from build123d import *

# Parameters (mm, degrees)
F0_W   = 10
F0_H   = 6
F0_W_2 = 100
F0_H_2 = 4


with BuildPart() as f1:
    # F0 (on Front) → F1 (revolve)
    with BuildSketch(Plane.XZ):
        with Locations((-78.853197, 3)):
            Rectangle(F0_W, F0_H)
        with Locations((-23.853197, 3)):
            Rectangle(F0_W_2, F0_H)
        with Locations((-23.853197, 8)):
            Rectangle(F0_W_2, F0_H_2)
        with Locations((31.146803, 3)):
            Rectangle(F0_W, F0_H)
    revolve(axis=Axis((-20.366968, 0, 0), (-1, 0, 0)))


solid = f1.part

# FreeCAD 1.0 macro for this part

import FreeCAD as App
import Part
import Sketcher
from FreeCAD import Vector
Q = App.Units.Quantity


def add_polygon(sketch, points):
    """Adds a closed chain of lines whose ends are joined by coincident constraints."""
    first, n = sketch.GeometryCount, len(points)
    for a, b in zip(points, points[1:] + points[:1]):
        sketch.addGeometry(Part.LineSegment(App.Vector(*a, 0), App.Vector(*b, 0)), False)
    for i in range(n):
        sketch.addConstraint(Sketcher.Constraint("Coincident", first + i, 2, first + (i + 1) % n, 1))

doc = App.newDocument("Part")
params = doc.addObject("Spreadsheet::Sheet", "Params")
for row, (alias, value) in enumerate([
    ("sketch1_width", "120 mm"),
    ("sketch1_width2", "10 mm"),
    ("sketch1_height", "6 mm"),
    ("sketch1_height2", "4 mm"),
    ("revolution_angle", "360 deg"),
], start=1):
    params.set(f"A{row}", alias)
    params.set(f"B{row}", "=" + value)
    params.setAlias(f"B{row}", alias)

body = doc.addObject("PartDesign::Body", "Body")

# Sketch on XZ plane
sketch1 = body.newObject("Sketcher::SketchObject", "Sketch")
sketch1.AttachmentSupport = (doc.getObject("XZ_Plane"), [""])
sketch1.MapMode = "FlatFace"
add_polygon(sketch1, [(-83.853197, 6), (-83.853197, 0), (36.146803, 0), (36.146803, 6), (26.146803, 6), (26.146803, 10), (-73.853197, 10), (-73.853197, 6)])  # lines 0-7
sketch1.addConstraint(Sketcher.Constraint("Vertical", 0))
sketch1.addConstraint(Sketcher.Constraint("Horizontal", 1))
sketch1.addConstraint(Sketcher.Constraint("Vertical", 2))
sketch1.addConstraint(Sketcher.Constraint("Horizontal", 3))
sketch1.addConstraint(Sketcher.Constraint("Vertical", 4))
sketch1.addConstraint(Sketcher.Constraint("Horizontal", 5))
sketch1.addConstraint(Sketcher.Constraint("Vertical", 6))
sketch1.addConstraint(Sketcher.Constraint("Horizontal", 7))
sketch1.addConstraint(Sketcher.Constraint("PointOnObject", 0, 2, -1))
sketch1.addConstraint(Sketcher.Constraint("Horizontal", 3, 2, 6, 2))
sketch1.addConstraint(Sketcher.Constraint("Equal", 3, 7))
sketch1.addConstraint(Sketcher.Constraint("DistanceX", 1, 1, 1, 2, Q("120 mm")))
sketch1.addConstraint(Sketcher.Constraint("DistanceX", 3, 2, 3, 1, Q("10 mm")))
sketch1.addConstraint(Sketcher.Constraint("DistanceY", 0, 2, 0, 1, Q("6 mm")))
sketch1.addConstraint(Sketcher.Constraint("DistanceY", 4, 1, 4, 2, Q("4 mm")))
sketch1.addConstraint(Sketcher.Constraint("DistanceX", 0, 2, -1, 1, Q("83.853197 mm")))
sketch1.setExpression("Constraints[19]", "Params.sketch1_width")
sketch1.setExpression("Constraints[20]", "Params.sketch1_width2")
sketch1.setExpression("Constraints[21]", "Params.sketch1_height")
sketch1.setExpression("Constraints[22]", "Params.sketch1_height2")
revolution = body.newObject("PartDesign::Revolution", "Revolution")
revolution.Profile = sketch1
revolution.ReferenceAxis = (sketch1, ["H_Axis"])
revolution.setExpression("Angle", "Params.revolution_angle")

doc.recompute()
